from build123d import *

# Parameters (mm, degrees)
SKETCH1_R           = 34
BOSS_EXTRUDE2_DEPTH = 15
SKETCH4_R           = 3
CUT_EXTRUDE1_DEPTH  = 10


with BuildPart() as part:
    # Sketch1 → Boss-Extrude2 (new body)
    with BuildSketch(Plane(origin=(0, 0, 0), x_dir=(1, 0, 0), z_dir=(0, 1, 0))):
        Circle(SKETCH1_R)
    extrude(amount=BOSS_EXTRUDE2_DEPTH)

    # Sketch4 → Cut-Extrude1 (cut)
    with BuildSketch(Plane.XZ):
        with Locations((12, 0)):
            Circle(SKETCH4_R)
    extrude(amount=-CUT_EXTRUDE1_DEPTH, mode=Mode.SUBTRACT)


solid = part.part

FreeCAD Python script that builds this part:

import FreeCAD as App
import Part
import Sketcher
from FreeCAD import Vector
Q = App.Units.Quantity

doc = App.newDocument("Part")
body = doc.addObject("PartDesign::Body", "Body")

sketch1 = body.newObject("Sketcher::SketchObject", "Sketch")
sketch1.AttachmentSupport = (doc.getObject("XZ_Plane"), [""])
sketch1.MapMode = "FlatFace"
sketch1.addGeometry(Part.Circle(Vector(0, 0, 0), Vector(0, 0, 1), 34), False)
sketch1.addConstraint(Sketcher.Constraint("Coincident", 0, 3, -1, 1))
sketch1.addConstraint(Sketcher.Constraint("Diameter", 0, Q("68 mm")))
pad1 = body.newObject("PartDesign::Pad", "Pad")
pad1.Profile = sketch1
pad1.Length = 15
pad1.Reversed = True

sketch2 = body.newObject("Sketcher::SketchObject", "Sketch001")
sketch2.AttachmentSupport = (doc.getObject("XZ_Plane"), [""])
sketch2.MapMode = "FlatFace"
sketch2.addGeometry(Part.Circle(Vector(12, 0, 0), Vector(0, 0, 1), 3), False)
sketch2.addConstraint(Sketcher.Constraint("PointOnObject", 0, 3, -1))
sketch2.addConstraint(Sketcher.Constraint("Diameter", 0, Q("6 mm")))
sketch2.addConstraint(Sketcher.Constraint("DistanceX", -1, 1, 0, 3, Q("12 mm")))
pocket1 = body.newObject("PartDesign::Pocket", "Pocket")
pocket1.Profile = sketch2
pocket1.Length = 10

doc.recompute()
